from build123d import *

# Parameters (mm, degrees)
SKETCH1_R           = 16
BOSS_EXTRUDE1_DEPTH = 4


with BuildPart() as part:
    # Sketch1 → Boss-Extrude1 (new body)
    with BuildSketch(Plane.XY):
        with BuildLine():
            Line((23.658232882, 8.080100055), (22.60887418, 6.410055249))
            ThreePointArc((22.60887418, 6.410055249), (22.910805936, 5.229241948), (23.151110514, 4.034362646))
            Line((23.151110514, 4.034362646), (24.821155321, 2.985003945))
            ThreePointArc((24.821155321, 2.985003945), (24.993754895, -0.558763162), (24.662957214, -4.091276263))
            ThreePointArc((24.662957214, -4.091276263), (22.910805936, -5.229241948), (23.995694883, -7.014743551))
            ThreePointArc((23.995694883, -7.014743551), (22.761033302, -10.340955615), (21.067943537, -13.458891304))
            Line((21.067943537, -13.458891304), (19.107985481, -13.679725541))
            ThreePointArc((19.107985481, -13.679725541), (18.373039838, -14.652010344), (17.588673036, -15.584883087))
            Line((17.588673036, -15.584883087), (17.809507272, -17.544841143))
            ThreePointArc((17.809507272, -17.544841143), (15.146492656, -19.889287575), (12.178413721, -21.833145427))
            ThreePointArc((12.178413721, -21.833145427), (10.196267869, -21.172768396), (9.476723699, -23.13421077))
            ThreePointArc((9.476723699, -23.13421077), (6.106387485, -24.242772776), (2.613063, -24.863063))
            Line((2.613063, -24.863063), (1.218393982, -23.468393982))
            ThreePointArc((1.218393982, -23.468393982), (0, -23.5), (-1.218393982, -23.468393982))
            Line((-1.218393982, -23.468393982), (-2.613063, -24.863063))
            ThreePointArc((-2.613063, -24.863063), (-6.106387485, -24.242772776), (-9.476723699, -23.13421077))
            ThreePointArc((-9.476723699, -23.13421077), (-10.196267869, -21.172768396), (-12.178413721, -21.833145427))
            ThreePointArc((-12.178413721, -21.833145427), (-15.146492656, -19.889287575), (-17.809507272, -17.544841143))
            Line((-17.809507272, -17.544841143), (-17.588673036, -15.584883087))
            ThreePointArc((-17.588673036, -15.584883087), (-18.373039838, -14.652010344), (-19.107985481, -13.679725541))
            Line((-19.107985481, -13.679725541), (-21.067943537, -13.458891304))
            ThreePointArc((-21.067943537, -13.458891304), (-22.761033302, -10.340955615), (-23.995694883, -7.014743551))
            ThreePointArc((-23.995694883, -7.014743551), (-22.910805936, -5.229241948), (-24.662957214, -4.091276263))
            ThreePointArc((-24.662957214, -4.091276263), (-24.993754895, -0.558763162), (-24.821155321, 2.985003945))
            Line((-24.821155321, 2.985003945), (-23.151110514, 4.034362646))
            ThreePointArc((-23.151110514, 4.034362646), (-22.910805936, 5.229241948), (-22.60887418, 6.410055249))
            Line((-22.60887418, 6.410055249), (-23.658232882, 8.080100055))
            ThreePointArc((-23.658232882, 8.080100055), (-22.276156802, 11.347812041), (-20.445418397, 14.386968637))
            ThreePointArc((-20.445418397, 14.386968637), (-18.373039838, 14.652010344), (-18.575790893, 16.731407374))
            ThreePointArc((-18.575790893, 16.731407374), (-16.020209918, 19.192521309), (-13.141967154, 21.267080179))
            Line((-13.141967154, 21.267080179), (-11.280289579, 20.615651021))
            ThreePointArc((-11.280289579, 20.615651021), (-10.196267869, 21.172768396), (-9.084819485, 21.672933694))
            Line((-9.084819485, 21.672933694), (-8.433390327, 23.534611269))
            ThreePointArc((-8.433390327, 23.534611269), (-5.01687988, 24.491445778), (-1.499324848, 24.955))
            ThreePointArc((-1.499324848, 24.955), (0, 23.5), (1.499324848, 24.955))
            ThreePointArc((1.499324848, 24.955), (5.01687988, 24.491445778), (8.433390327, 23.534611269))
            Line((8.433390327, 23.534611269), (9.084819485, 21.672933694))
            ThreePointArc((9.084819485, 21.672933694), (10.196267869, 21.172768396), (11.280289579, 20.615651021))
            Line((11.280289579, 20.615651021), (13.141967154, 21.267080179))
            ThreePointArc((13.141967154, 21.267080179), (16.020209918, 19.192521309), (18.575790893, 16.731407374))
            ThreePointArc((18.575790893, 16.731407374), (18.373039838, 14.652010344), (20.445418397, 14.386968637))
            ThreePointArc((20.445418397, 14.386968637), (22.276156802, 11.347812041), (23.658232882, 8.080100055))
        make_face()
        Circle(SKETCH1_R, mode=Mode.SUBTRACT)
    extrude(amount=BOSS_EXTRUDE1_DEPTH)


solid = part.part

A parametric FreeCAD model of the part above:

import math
import FreeCAD as App
import Part
import Sketcher

doc = App.newDocument("Part")
params = doc.addObject("Spreadsheet::Sheet", "Params")
for row, (alias, value) in enumerate([
    ("sketch1_diameter", "32 mm"),
    ("sketch1_radius", "25 mm"),
    ("sketch1_radius2", "1.5 mm"),
    ("sketch1_radius3", "23.5 mm"),
    ("pad1_length", "4 mm"),
], start=1):
    params.set(f"A{row}", alias)
    params.set(f"B{row}", "=" + value)
    params.setAlias(f"B{row}", alias)

body = doc.addObject("PartDesign::Body", "Body")

# Sketch on XY plane
sketch1 = doc.addObject("Sketcher::SketchObject", "Sketch")
body.addObject(sketch1)
sketch1.AttachmentSupport = (doc.XY_Plane, [""])
sketch1.MapMode = "FlatFace"
sketch1.addGeometry([
    Part.LineSegment(App.Vector(22.6, 6.4, 0), App.Vector(23.7, 8.1, 0)),  # 0
    Part.ArcOfCircle(Part.Circle(App.Vector(0, 0, 0), App.Vector(0, 0, 1), 25), math.radians(18.86), math.radians(35.13)),  # 1
    Part.ArcOfCircle(Part.Circle(App.Vector(19.5, 15.6, 0), App.Vector(0, 0, 1), 1.5), math.radians(130), math.radians(307)),  # 2
    Part.ArcOfCircle(Part.Circle(App.Vector(0, 0, 0), App.Vector(0, 0, 1), 25), math.radians(42.01), math.radians(58.29)),  # 3
    Part.LineSegment(App.Vector(13.1, 21.3, 0), App.Vector(11.3, 20.6, 0)),  # 4
    Part.ArcOfCircle(Part.Circle(App.Vector(0, 0, 0), App.Vector(0, 0, 1), 23.5), math.radians(61.31), math.radians(67.26)),  # 5
    Part.LineSegment(App.Vector(9.1, 21.7, 0), App.Vector(8.4, 23.5, 0)),  # 6
    Part.ArcOfCircle(Part.Circle(App.Vector(0, 0, 0), App.Vector(0, 0, 1), 25), math.radians(70.29), math.radians(86.56)),  # 7
    Part.ArcOfCircle(Part.Circle(App.Vector(0, 25, 0), App.Vector(0, 0, 1), 1.5), math.radians(-178), math.radians(-2)),  # 8
    Part.ArcOfCircle(Part.Circle(App.Vector(0, 0, 0), App.Vector(0, 0, 1), 25), math.radians(93.44), math.radians(109.71)),  # 9
    Part.LineSegment(App.Vector(-8.4, 23.5, 0), App.Vector(-9.1, 21.7, 0)),  # 10
    Part.ArcOfCircle(Part.Circle(App.Vector(0, 0, 0), App.Vector(0, 0, 1), 23.5), math.radians(112.74), math.radians(118.69)),  # 11
    Part.LineSegment(App.Vector(-11.3, 20.6, 0), App.Vector(-13.1, 21.3, 0)),  # 12
    Part.ArcOfCircle(Part.Circle(App.Vector(0, 0, 0), App.Vector(0, 0, 1), 25), math.radians(121.71), math.radians(137.99)),  # 13
    Part.ArcOfCircle(Part.Circle(App.Vector(-19.5, 15.6, 0), App.Vector(0, 0, 1), 1.5), math.radians(-127), math.radians(50)),  # 14
    Part.ArcOfCircle(Part.Circle(App.Vector(0, 0, 0), App.Vector(0, 0, 1), 25), math.radians(144.87), math.radians(161.14)),  # 15
    Part.LineSegment(App.Vector(-23.7, 8.1, 0), App.Vector(-22.6, 6.4, 0)),  # 16
    Part.ArcOfCircle(Part.Circle(App.Vector(0, 0, 0), App.Vector(0, 0, 1), 23.5), math.radians(164.17), math.radians(170.11)),  # 17
    Part.LineSegment(App.Vector(-23.2, 4, 0), App.Vector(-24.8, 3, 0)),  # 18
    Part.ArcOfCircle(Part.Circle(App.Vector(0, 0, 0), App.Vector(0, 0, 1), 25), math.radians(173.14), math.radians(189.42)),  # 19
    Part.ArcOfCircle(Part.Circle(App.Vector(-24.4, -5.6, 0), App.Vector(0, 0, 1), 1.5), math.radians(-75), math.radians(101)),  # 20
    Part.ArcOfCircle(Part.Circle(App.Vector(0, 0, 0), App.Vector(0, 0, 1), 25), math.radians(-163.7), math.radians(-147.43)),  # 21
    Part.LineSegment(App.Vector(-21.1, -13.5, 0), App.Vector(-19.1, -13.7, 0)),  # 22
    Part.ArcOfCircle(Part.Circle(App.Vector(0, 0, 0), App.Vector(0, 0, 1), 23.5), math.radians(-144.4), math.radians(-138.46)),  # 23
    Part.LineSegment(App.Vector(-17.6, -15.6, 0), App.Vector(-17.8, -17.5, 0)),  # 24
    Part.ArcOfCircle(Part.Circle(App.Vector(0, 0, 0), App.Vector(0, 0, 1), 25), math.radians(-135.43), math.radians(-119.15)),  # 25
    Part.ArcOfCircle(Part.Circle(App.Vector(-10.8, -22.5, 0), App.Vector(0, 0, 1), 1.5), math.radians(-24), math.radians(153)),  # 26
    Part.ArcOfCircle(Part.Circle(App.Vector(0, 0, 0), App.Vector(0, 0, 1), 25), math.radians(-112.28), math.radians(-96)),  # 27
    Part.LineSegment(App.Vector(-2.6, -24.9, 0), App.Vector(-1.2, -23.5, 0)),  # 28
    Part.ArcOfCircle(Part.Circle(App.Vector(0, 0, 0), App.Vector(0, 0, 1), 23.5), math.radians(-92.97), math.radians(-87.03)),  # 29
    Part.LineSegment(App.Vector(1.2, -23.5, 0), App.Vector(2.6, -24.9, 0)),  # 30
    Part.ArcOfCircle(Part.Circle(App.Vector(0, 0, 0), App.Vector(0, 0, 1), 25), math.radians(-84), math.radians(-67.72)),  # 31
    Part.ArcOfCircle(Part.Circle(App.Vector(10.8, -22.5, 0), App.Vector(0, 0, 1), 1.5), math.radians(27), math.radians(204)),  # 32
    Part.ArcOfCircle(Part.Circle(App.Vector(0, 0, 0), App.Vector(0, 0, 1), 25), math.radians(-60.85), math.radians(-44.57)),  # 33
    Part.LineSegment(App.Vector(17.8, -17.5, 0), App.Vector(17.6, -15.6, 0)),  # 34
    Part.ArcOfCircle(Part.Circle(App.Vector(0, 0, 0), App.Vector(0, 0, 1), 23.5), math.radians(-41.54), math.radians(-35.6)),  # 35
    Part.LineSegment(App.Vector(19.1, -13.7, 0), App.Vector(21.1, -13.5, 0)),  # 36
    Part.ArcOfCircle(Part.Circle(App.Vector(0, 0, 0), App.Vector(0, 0, 1), 25), math.radians(-32.57), math.radians(-16.3)),  # 37
    Part.ArcOfCircle(Part.Circle(App.Vector(24.4, -5.6, 0), App.Vector(0, 0, 1), 1.5), math.radians(79), math.radians(255)),  # 38
    Part.ArcOfCircle(Part.Circle(App.Vector(0, 0, 0), App.Vector(0, 0, 1), 25), math.radians(-9.42), math.radians(6.86)),  # 39
    Part.LineSegment(App.Vector(24.8, 3, 0), App.Vector(23.2, 4, 0)),  # 40
    Part.ArcOfCircle(Part.Circle(App.Vector(0, 0, 0), App.Vector(0, 0, 1), 23.5), math.radians(9.89), math.radians(15.83)),  # 41
    Part.Circle(App.Vector(0, 0, 0), App.Vector(0, 0, 1), 16),  # 42
], False)
sketch1.addConstraint([
    Sketcher.Constraint("Coincident", 0, 2, 1, 1),
    Sketcher.Constraint("Coincident", 1, 2, 2, 2),
    Sketcher.Constraint("Coincident", 2, 1, 3, 1),
    Sketcher.Constraint("Coincident", 3, 2, 4, 1),
    Sketcher.Constraint("Coincident", 4, 2, 5, 1),
    Sketcher.Constraint("Coincident", 5, 2, 6, 1),
    Sketcher.Constraint("Coincident", 6, 2, 7, 1),
    Sketcher.Constraint("Coincident", 7, 2, 8, 2),
    Sketcher.Constraint("Coincident", 8, 1, 9, 1),
    Sketcher.Constraint("Coincident", 9, 2, 10, 1),
    Sketcher.Constraint("Coincident", 10, 2, 11, 1),
    Sketcher.Constraint("Coincident", 11, 2, 12, 1),
    Sketcher.Constraint("Coincident", 12, 2, 13, 1),
    Sketcher.Constraint("Coincident", 13, 2, 14, 2),
    Sketcher.Constraint("Coincident", 14, 1, 15, 1),
    Sketcher.Constraint("Coincident", 15, 2, 16, 1),
    Sketcher.Constraint("Coincident", 16, 2, 17, 1),
    Sketcher.Constraint("Coincident", 17, 2, 18, 1),
    Sketcher.Constraint("Coincident", 18, 2, 19, 1),
    Sketcher.Constraint("Coincident", 19, 2, 20, 2),
    Sketcher.Constraint("Coincident", 20, 1, 21, 1),
    Sketcher.Constraint("Coincident", 21, 2, 22, 1),
    Sketcher.Constraint("Coincident", 22, 2, 23, 1),
    Sketcher.Constraint("Coincident", 23, 2, 24, 1),
    Sketcher.Constraint("Coincident", 24, 2, 25, 1),
    Sketcher.Constraint("Coincident", 25, 2, 26, 2),
    Sketcher.Constraint("Coincident", 26, 1, 27, 1),
    Sketcher.Constraint("Coincident", 27, 2, 28, 1),
    Sketcher.Constraint("Coincident", 28, 2, 29, 1),
    Sketcher.Constraint("Coincident", 29, 2, 30, 1),
    Sketcher.Constraint("Coincident", 30, 2, 31, 1),
    Sketcher.Constraint("Coincident", 31, 2, 32, 2),
    Sketcher.Constraint("Coincident", 32, 1, 33, 1),
    Sketcher.Constraint("Coincident", 33, 2, 34, 1),
    Sketcher.Constraint("Coincident", 34, 2, 35, 1),
    Sketcher.Constraint("Coincident", 35, 2, 36, 1),
    Sketcher.Constraint("Coincident", 36, 2, 37, 1),
    Sketcher.Constraint("Coincident", 37, 2, 38, 2),
    Sketcher.Constraint("Coincident", 38, 1, 39, 1),
    Sketcher.Constraint("Coincident", 39, 2, 40, 1),
    Sketcher.Constraint("Coincident", 40, 2, 41, 1),
    Sketcher.Constraint("Coincident", 41, 2, 0, 1),
    Sketcher.Constraint("Coincident", 1, 3, -1, 1),
    Sketcher.Constraint("Coincident", 3, 3, -1, 1),
    Sketcher.Constraint("Coincident", 5, 3, -1, 1),
    Sketcher.Constraint("Coincident", 7, 3, -1, 1),
    Sketcher.Constraint("Coincident", 9, 3, -1, 1),
    Sketcher.Constraint("Coincident", 11, 3, -1, 1),
    Sketcher.Constraint("Coincident", 13, 3, -1, 1),
    Sketcher.Constraint("Coincident", 15, 3, -1, 1),
    Sketcher.Constraint("Coincident", 17, 3, -1, 1),
    Sketcher.Constraint("Coincident", 19, 3, -1, 1),
    Sketcher.Constraint("Coincident", 21, 3, -1, 1),
    Sketcher.Constraint("Coincident", 23, 3, -1, 1),
    Sketcher.Constraint("Coincident", 25, 3, -1, 1),
    Sketcher.Constraint("Coincident", 27, 3, -1, 1),
    Sketcher.Constraint("Coincident", 29, 3, -1, 1),
    Sketcher.Constraint("Coincident", 31, 3, -1, 1),
    Sketcher.Constraint("Coincident", 33, 3, -1, 1),
    Sketcher.Constraint("Coincident", 35, 3, -1, 1),
    Sketcher.Constraint("Coincident", 37, 3, -1, 1),
    Sketcher.Constraint("Coincident", 39, 3, -1, 1),
    Sketcher.Constraint("Coincident", 41, 3, -1, 1),
    Sketcher.Constraint("Coincident", 42, 3, -1, 1),
    Sketcher.Constraint("Equal", 1, 3),
    Sketcher.Constraint("Equal", 3, 7),
    Sketcher.Constraint("Equal", 2, 8),
    Sketcher.Constraint("Equal", 7, 9),
    Sketcher.Constraint("Equal", 5, 11),
    Sketcher.Constraint("Equal", 9, 13),
    Sketcher.Constraint("Equal", 8, 14),
    Sketcher.Constraint("Equal", 13, 15),
    Sketcher.Constraint("Equal", 11, 17),
    Sketcher.Constraint("Equal", 15, 19),
    Sketcher.Constraint("Equal", 14, 20),
    Sketcher.Constraint("Equal", 19, 21),
    Sketcher.Constraint("Equal", 17, 23),
    Sketcher.Constraint("Equal", 21, 25),
    Sketcher.Constraint("Equal", 20, 26),
    Sketcher.Constraint("Equal", 25, 27),
    Sketcher.Constraint("Equal", 23, 29),
    Sketcher.Constraint("Equal", 27, 31),
    Sketcher.Constraint("Equal", 26, 32),
    Sketcher.Constraint("Equal", 31, 33),
    Sketcher.Constraint("Equal", 29, 35),
    Sketcher.Constraint("Equal", 33, 37),
    Sketcher.Constraint("Equal", 32, 38),
    Sketcher.Constraint("Equal", 37, 39),
    Sketcher.Constraint("Equal", 35, 41),
    Sketcher.Constraint("Symmetric", 2, 3, 14, 3, -2),
    Sketcher.Constraint("Symmetric", 26, 3, 32, 3, -2),
    Sketcher.Constraint("Symmetric", 20, 3, 38, 3, -2),
    Sketcher.Constraint("PointOnObject", 8, 3, -2),
    Sketcher.Constraint("Perpendicular", 4, 6),
    Sketcher.Constraint("Perpendicular", 10, 12),
    Sketcher.Constraint("Perpendicular", 16, 18),
    Sketcher.Constraint("Perpendicular", 22, 24),
    Sketcher.Constraint("Perpendicular", 28, 30),
    Sketcher.Constraint("Perpendicular", 34, 36),
    Sketcher.Constraint("Perpendicular", 0, 40),
    Sketcher.Constraint("Horizontal", 6, 2, 9, 2),
    Sketcher.Constraint("Horizontal", 5, 2, 10, 2),
    Sketcher.Constraint("Horizontal", 4, 2, 11, 2),
    Sketcher.Constraint("Horizontal", 0, 2, 15, 2),
    Sketcher.Constraint("Horizontal", 28, 2, 29, 2),
    Sketcher.Constraint("Horizontal", 27, 2, 30, 2),
    Sketcher.Constraint("Horizontal", 24, 2, 33, 2),
    Sketcher.Constraint("Horizontal", 23, 2, 34, 2),
    Sketcher.Constraint("Horizontal", 22, 2, 35, 2),
    Sketcher.Constraint("Horizontal", 18, 2, 39, 2),
    Sketcher.Constraint("Horizontal", 17, 2, 40, 2),
    Sketcher.Constraint("Equal", 0, 4),
    Sketcher.Constraint("Equal", 4, 6),
    Sketcher.Constraint("Equal", 16, 18),
    Sketcher.Constraint("Equal", 18, 22),
    Sketcher.Constraint("Equal", 22, 24),
    Sketcher.Constraint("Equal", 24, 28),
    Sketcher.Constraint("Diameter", 42, 32.0),
    Sketcher.Constraint("Radius", 1, 25.0),
    Sketcher.Constraint("Radius", 2, 1.5),
    Sketcher.Constraint("Radius", 5, 23.5),
    Sketcher.Constraint("DistanceY", -1, 1, 8, 3, 25.0),
    Sketcher.Constraint("DistanceY", -1, 1, 0, 2, 8.0801),
    Sketcher.Constraint("Distance", 0, 1.97236),
    Sketcher.Constraint("DistanceY", 26, 3, -1, 1, 22.524222),
    Sketcher.Constraint("DistanceX", -1, 1, 1, 2, 20.445418),
    Sketcher.Constraint("DistanceX", -1, 1, 2, 1, 18.575791),
    Sketcher.Constraint("DistanceY", -1, 1, 3, 2, 21.26708),
    Sketcher.Constraint("DistanceY", 21, 2, -1, 1, 13.458891),
    Sketcher.Constraint("DistanceY", 26, 1, -1, 1, 23.134211),
    Sketcher.Constraint("DistanceX", 20, 3, -1, 1, 24.373198),
    Sketcher.Constraint("DistanceY", 20, 3, -1, 1, 5.563023),
])
sketch1.setExpression("Constraints[117]", "Params.sketch1_diameter")
sketch1.setExpression("Constraints[118]", "Params.sketch1_radius")
sketch1.setExpression("Constraints[119]", "Params.sketch1_radius2")
sketch1.setExpression("Constraints[120]", "Params.sketch1_radius3")
pad1 = doc.addObject("PartDesign::Pad", "Pad")
body.addObject(pad1)
pad1.Profile = sketch1
pad1.setExpression("Length", "Params.pad1_length")

doc.recompute()
